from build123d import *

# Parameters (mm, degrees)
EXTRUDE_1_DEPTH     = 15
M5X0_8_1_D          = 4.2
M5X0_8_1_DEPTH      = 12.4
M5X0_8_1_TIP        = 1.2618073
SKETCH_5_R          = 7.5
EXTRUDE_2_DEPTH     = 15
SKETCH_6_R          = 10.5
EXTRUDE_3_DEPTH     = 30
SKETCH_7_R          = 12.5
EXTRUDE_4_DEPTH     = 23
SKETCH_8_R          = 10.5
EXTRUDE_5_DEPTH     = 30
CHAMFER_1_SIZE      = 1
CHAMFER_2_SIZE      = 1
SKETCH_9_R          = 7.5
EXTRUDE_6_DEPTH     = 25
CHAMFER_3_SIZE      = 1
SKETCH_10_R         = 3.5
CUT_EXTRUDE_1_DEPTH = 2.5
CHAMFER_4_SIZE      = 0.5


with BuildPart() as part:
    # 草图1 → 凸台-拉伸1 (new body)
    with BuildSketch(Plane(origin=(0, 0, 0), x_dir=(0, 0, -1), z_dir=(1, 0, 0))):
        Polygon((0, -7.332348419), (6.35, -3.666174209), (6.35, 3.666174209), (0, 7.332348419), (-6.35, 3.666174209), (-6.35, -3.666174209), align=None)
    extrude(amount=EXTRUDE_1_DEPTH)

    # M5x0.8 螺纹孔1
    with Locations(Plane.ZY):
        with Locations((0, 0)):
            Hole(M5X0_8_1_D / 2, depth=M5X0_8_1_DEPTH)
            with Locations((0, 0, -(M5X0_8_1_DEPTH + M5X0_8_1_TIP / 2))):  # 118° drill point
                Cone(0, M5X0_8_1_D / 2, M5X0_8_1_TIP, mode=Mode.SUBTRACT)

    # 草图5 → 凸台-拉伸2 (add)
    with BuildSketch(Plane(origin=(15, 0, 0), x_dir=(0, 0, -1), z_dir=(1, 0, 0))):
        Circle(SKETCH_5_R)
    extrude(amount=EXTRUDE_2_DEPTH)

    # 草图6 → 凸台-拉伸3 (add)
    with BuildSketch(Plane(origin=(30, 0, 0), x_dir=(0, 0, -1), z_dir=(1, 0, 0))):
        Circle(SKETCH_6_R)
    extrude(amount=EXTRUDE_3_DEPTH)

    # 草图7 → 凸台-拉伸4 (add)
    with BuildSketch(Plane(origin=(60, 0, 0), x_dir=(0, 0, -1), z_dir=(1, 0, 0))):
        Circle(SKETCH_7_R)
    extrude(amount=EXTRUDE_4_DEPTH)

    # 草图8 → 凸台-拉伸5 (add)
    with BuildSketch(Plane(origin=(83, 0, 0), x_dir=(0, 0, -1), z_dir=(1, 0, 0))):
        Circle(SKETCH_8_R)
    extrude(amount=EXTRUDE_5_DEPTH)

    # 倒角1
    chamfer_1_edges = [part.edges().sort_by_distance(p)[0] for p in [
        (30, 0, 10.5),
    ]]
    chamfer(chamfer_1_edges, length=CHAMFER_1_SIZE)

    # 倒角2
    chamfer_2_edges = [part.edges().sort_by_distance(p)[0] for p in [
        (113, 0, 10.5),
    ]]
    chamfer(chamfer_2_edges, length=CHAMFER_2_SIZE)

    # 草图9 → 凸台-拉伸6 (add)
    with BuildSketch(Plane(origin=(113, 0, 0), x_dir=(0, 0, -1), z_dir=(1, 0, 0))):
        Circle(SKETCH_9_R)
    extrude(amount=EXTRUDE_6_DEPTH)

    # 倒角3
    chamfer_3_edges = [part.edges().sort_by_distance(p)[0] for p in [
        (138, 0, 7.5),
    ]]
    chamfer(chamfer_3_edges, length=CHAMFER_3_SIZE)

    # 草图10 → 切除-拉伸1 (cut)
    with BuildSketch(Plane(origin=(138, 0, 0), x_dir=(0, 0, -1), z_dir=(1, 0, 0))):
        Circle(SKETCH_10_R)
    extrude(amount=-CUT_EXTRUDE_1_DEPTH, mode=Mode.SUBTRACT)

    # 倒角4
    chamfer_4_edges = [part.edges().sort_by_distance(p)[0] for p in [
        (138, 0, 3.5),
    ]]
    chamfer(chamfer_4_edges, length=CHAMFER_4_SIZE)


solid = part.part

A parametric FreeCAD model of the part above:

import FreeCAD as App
import Part
import Sketcher
from FreeCAD import Vector
Q = App.Units.Quantity


def edges_at(feature, points):
    """Names of the edges that pass closest to the given points."""
    edges = feature.Shape.Edges
    near = lambda p: min(range(len(edges)), key=lambda i: edges[i].distToShape(Part.Vertex(*p))[0])
    return sorted({f"Edge{near(p) + 1}" for p in points})

doc = App.newDocument("Part")
params = doc.addObject("Spreadsheet::Sheet", "Params")
for row, (alias, value) in enumerate([
    ("pad1_length", "15 mm"),
    ("sketch2_diameter", "4.2 mm"),
    ("hole_diameter", "4.2 mm"),
    ("hole_depth", "12.4 mm"),
    ("sketch3_diameter", "15 mm"),
    ("pad2_length", "15 mm"),
    ("sketch4_diameter", "21 mm"),
    ("pad3_length", "30 mm"),
    ("sketch5_diameter", "25 mm"),
    ("pad4_length", "23 mm"),
    ("sketch6_diameter", "21 mm"),
    ("pad5_length", "30 mm"),
    ("chamfer_size", "1 mm"),
    ("chamfer2_size", "1 mm"),
    ("sketch7_diameter", "15 mm"),
    ("pad6_length", "25 mm"),
    ("chamfer3_size", "1 mm"),
    ("sketch8_diameter", "7 mm"),
    ("pocket1_length", "2.5 mm"),
    ("chamfer4_size", "0.5 mm"),
], start=1):
    params.set(f"A{row}", alias)
    params.set(f"B{row}", "=" + value)
    params.setAlias(f"B{row}", alias)

body = doc.addObject("PartDesign::Body", "Body")

sketch1 = body.newObject("Sketcher::SketchObject", "Sketch")
sketch1.AttachmentSupport = (doc.getObject("YZ_Plane"), [""])
sketch1.MapMode = "FlatFace"
sketch1.addGeometry(Part.LineSegment(Vector(-7, 0, 0), Vector(-4, -6, 0)), False)
sketch1.addGeometry(Part.LineSegment(Vector(-4, -6, 0), Vector(4, -6, 0)), False)
sketch1.addGeometry(Part.LineSegment(Vector(4, -6, 0), Vector(7, 0, 0)), False)
sketch1.addGeometry(Part.LineSegment(Vector(7, 0, 0), Vector(4, 6, 0)), False)
sketch1.addGeometry(Part.LineSegment(Vector(4, 6, 0), Vector(-4, 6, 0)), False)
sketch1.addGeometry(Part.LineSegment(Vector(-4, 6, 0), Vector(-7, 0, 0)), False)
sketch1.addConstraint(Sketcher.Constraint("Coincident", 0, 2, 1, 1))
sketch1.addConstraint(Sketcher.Constraint("Coincident", 1, 2, 2, 1))
sketch1.addConstraint(Sketcher.Constraint("Coincident", 2, 2, 3, 1))
sketch1.addConstraint(Sketcher.Constraint("Coincident", 3, 2, 4, 1))
sketch1.addConstraint(Sketcher.Constraint("Coincident", 4, 2, 5, 1))
sketch1.addConstraint(Sketcher.Constraint("Coincident", 5, 2, 0, 1))
sketch1.addConstraint(Sketcher.Constraint("Horizontal", 1))
sketch1.addConstraint(Sketcher.Constraint("Horizontal", 4))
sketch1.addConstraint(Sketcher.Constraint("Symmetric", 0, 2, 3, 2, -1, 1))
sketch1.addConstraint(Sketcher.Constraint("Symmetric", 2, 2, 5, 2, -1, 1))
sketch1.addConstraint(Sketcher.Constraint("PointOnObject", 2, 2, -1))
sketch1.addConstraint(Sketcher.Constraint("Parallel", 2, 5))
sketch1.addConstraint(Sketcher.Constraint("Vertical", 1, 2, 3, 2))
sketch1.addConstraint(Sketcher.Constraint("Angle", 0, Q("-60 deg")))
sketch1.addConstraint(Sketcher.Constraint("DistanceY", 1, 2, 3, 2, 12.7))
sketch1.addConstraint(Sketcher.Constraint("DistanceX", 1, 1, 1, 2, 7.332348))
pad1 = body.newObject("PartDesign::Pad", "Pad")
pad1.Profile = sketch1
pad1.setExpression("Length", "Params.pad1_length")

sketch2 = body.newObject("Sketcher::SketchObject", "Sketch001")
sketch2.AttachmentSupport = (doc.getObject("YZ_Plane"), [""])
sketch2.MapMode = "FlatFace"
sketch2.addGeometry(Part.Circle(Vector(0, 0, 0), Vector(0, 0, 1), 2.1), False)
sketch2.addConstraint(Sketcher.Constraint("Coincident", 0, 3, -1, 1))
sketch2.addConstraint(Sketcher.Constraint("Diameter", 0, 4.2))
sketch2.setExpression("Constraints[1]", "Params.sketch2_diameter")
doc.recompute()
hole = body.newObject("PartDesign::Hole", "Hole")
hole.Profile = sketch2
hole.ThreadType = "None"
hole.setExpression("Diameter", "Params.hole_diameter")
hole.DepthType = "Dimension"
hole.setExpression("Depth", "Params.hole_depth")
hole.DrillPoint = "Angled"
hole.DrillPointAngle = 118
hole.Reversed = True

sketch3 = body.newObject("Sketcher::SketchObject", "Sketch002")
sketch3.AttachmentSupport = (doc.getObject("YZ_Plane"), [""])
sketch3.MapMode = "FlatFace"
sketch3.AttachmentOffset = App.Placement(Vector(0, 0, 15), App.Rotation())
sketch3.addGeometry(Part.Circle(Vector(0, 0, 0), Vector(0, 0, 1), 8), False)
sketch3.addConstraint(Sketcher.Constraint("Coincident", 0, 3, -1, 1))
sketch3.addConstraint(Sketcher.Constraint("Diameter", 0, 15.0))
sketch3.setExpression("Constraints[1]", "Params.sketch3_diameter")
pad2 = body.newObject("PartDesign::Pad", "Pad001")
pad2.Profile = sketch3
pad2.setExpression("Length", "Params.pad2_length")

sketch4 = body.newObject("Sketcher::SketchObject", "Sketch003")
sketch4.AttachmentSupport = (doc.getObject("YZ_Plane"), [""])
sketch4.MapMode = "FlatFace"
sketch4.AttachmentOffset = App.Placement(Vector(0, 0, 30), App.Rotation())
sketch4.addGeometry(Part.Circle(Vector(0, 0, 0), Vector(0, 0, 1), 10), False)
sketch4.addConstraint(Sketcher.Constraint("Coincident", 0, 3, -1, 1))
sketch4.addConstraint(Sketcher.Constraint("Diameter", 0, 21.0))
sketch4.setExpression("Constraints[1]", "Params.sketch4_diameter")
pad3 = body.newObject("PartDesign::Pad", "Pad002")
pad3.Profile = sketch4
pad3.setExpression("Length", "Params.pad3_length")

sketch5 = body.newObject("Sketcher::SketchObject", "Sketch004")
sketch5.AttachmentSupport = (doc.getObject("YZ_Plane"), [""])
sketch5.MapMode = "FlatFace"
sketch5.AttachmentOffset = App.Placement(Vector(0, 0, 60), App.Rotation())
sketch5.addGeometry(Part.Circle(Vector(0, 0, 0), Vector(0, 0, 1), 12), False)
sketch5.addConstraint(Sketcher.Constraint("Coincident", 0, 3, -1, 1))
sketch5.addConstraint(Sketcher.Constraint("Diameter", 0, 25.0))
sketch5.setExpression("Constraints[1]", "Params.sketch5_diameter")
pad4 = body.newObject("PartDesign::Pad", "Pad003")
pad4.Profile = sketch5
pad4.setExpression("Length", "Params.pad4_length")

sketch6 = body.newObject("Sketcher::SketchObject", "Sketch005")
sketch6.AttachmentSupport = (doc.getObject("YZ_Plane"), [""])
sketch6.MapMode = "FlatFace"
sketch6.AttachmentOffset = App.Placement(Vector(0, 0, 83), App.Rotation())
sketch6.addGeometry(Part.Circle(Vector(0, 0, 0), Vector(0, 0, 1), 10), False)
sketch6.addConstraint(Sketcher.Constraint("Coincident", 0, 3, -1, 1))
sketch6.addConstraint(Sketcher.Constraint("Diameter", 0, 21.0))
sketch6.setExpression("Constraints[1]", "Params.sketch6_diameter")
pad5 = body.newObject("PartDesign::Pad", "Pad004")
pad5.Profile = sketch6
pad5.setExpression("Length", "Params.pad5_length")
doc.recompute()

chamfer = body.newObject("PartDesign::Chamfer", "Chamfer")
chamfer.Base = (pad5, edges_at(pad5, [(30, 0, 10.5)]))
chamfer.setExpression("Size", "Params.chamfer_size")
doc.recompute()

chamfer2 = body.newObject("PartDesign::Chamfer", "Chamfer001")
chamfer2.Base = (chamfer, edges_at(chamfer, [(113, 0, 10.5)]))
chamfer2.setExpression("Size", "Params.chamfer2_size")

sketch7 = body.newObject("Sketcher::SketchObject", "Sketch006")
sketch7.AttachmentSupport = (doc.getObject("YZ_Plane"), [""])
sketch7.MapMode = "FlatFace"
sketch7.AttachmentOffset = App.Placement(Vector(0, 0, 113), App.Rotation())
sketch7.addGeometry(Part.Circle(Vector(0, 0, 0), Vector(0, 0, 1), 8), False)
sketch7.addConstraint(Sketcher.Constraint("Coincident", 0, 3, -1, 1))
sketch7.addConstraint(Sketcher.Constraint("Diameter", 0, 15.0))
sketch7.setExpression("Constraints[1]", "Params.sketch7_diameter")
pad6 = body.newObject("PartDesign::Pad", "Pad005")
pad6.Profile = sketch7
pad6.setExpression("Length", "Params.pad6_length")
doc.recompute()

chamfer3 = body.newObject("PartDesign::Chamfer", "Chamfer002")
chamfer3.Base = (pad6, edges_at(pad6, [(138, 0, 7.5)]))
chamfer3.setExpression("Size", "Params.chamfer3_size")

sketch8 = body.newObject("Sketcher::SketchObject", "Sketch007")
sketch8.AttachmentSupport = (doc.getObject("YZ_Plane"), [""])
sketch8.MapMode = "FlatFace"
sketch8.AttachmentOffset = App.Placement(Vector(0, 0, 138), App.Rotation())
sketch8.addGeometry(Part.Circle(Vector(0, 0, 0), Vector(0, 0, 1), 3.5), False)
sketch8.addConstraint(Sketcher.Constraint("Coincident", 0, 3, -1, 1))
sketch8.addConstraint(Sketcher.Constraint("Diameter", 0, 7.0))
sketch8.setExpression("Constraints[1]", "Params.sketch8_diameter")
pocket1 = body.newObject("PartDesign::Pocket", "Pocket")
pocket1.Profile = sketch8
pocket1.setExpression("Length", "Params.pocket1_length")
doc.recompute()

chamfer4 = body.newObject("PartDesign::Chamfer", "Chamfer003")
chamfer4.Base = (pocket1, edges_at(pocket1, [(138, 0, 3.5)]))
chamfer4.setExpression("Size", "Params.chamfer4_size")

doc.recompute()
